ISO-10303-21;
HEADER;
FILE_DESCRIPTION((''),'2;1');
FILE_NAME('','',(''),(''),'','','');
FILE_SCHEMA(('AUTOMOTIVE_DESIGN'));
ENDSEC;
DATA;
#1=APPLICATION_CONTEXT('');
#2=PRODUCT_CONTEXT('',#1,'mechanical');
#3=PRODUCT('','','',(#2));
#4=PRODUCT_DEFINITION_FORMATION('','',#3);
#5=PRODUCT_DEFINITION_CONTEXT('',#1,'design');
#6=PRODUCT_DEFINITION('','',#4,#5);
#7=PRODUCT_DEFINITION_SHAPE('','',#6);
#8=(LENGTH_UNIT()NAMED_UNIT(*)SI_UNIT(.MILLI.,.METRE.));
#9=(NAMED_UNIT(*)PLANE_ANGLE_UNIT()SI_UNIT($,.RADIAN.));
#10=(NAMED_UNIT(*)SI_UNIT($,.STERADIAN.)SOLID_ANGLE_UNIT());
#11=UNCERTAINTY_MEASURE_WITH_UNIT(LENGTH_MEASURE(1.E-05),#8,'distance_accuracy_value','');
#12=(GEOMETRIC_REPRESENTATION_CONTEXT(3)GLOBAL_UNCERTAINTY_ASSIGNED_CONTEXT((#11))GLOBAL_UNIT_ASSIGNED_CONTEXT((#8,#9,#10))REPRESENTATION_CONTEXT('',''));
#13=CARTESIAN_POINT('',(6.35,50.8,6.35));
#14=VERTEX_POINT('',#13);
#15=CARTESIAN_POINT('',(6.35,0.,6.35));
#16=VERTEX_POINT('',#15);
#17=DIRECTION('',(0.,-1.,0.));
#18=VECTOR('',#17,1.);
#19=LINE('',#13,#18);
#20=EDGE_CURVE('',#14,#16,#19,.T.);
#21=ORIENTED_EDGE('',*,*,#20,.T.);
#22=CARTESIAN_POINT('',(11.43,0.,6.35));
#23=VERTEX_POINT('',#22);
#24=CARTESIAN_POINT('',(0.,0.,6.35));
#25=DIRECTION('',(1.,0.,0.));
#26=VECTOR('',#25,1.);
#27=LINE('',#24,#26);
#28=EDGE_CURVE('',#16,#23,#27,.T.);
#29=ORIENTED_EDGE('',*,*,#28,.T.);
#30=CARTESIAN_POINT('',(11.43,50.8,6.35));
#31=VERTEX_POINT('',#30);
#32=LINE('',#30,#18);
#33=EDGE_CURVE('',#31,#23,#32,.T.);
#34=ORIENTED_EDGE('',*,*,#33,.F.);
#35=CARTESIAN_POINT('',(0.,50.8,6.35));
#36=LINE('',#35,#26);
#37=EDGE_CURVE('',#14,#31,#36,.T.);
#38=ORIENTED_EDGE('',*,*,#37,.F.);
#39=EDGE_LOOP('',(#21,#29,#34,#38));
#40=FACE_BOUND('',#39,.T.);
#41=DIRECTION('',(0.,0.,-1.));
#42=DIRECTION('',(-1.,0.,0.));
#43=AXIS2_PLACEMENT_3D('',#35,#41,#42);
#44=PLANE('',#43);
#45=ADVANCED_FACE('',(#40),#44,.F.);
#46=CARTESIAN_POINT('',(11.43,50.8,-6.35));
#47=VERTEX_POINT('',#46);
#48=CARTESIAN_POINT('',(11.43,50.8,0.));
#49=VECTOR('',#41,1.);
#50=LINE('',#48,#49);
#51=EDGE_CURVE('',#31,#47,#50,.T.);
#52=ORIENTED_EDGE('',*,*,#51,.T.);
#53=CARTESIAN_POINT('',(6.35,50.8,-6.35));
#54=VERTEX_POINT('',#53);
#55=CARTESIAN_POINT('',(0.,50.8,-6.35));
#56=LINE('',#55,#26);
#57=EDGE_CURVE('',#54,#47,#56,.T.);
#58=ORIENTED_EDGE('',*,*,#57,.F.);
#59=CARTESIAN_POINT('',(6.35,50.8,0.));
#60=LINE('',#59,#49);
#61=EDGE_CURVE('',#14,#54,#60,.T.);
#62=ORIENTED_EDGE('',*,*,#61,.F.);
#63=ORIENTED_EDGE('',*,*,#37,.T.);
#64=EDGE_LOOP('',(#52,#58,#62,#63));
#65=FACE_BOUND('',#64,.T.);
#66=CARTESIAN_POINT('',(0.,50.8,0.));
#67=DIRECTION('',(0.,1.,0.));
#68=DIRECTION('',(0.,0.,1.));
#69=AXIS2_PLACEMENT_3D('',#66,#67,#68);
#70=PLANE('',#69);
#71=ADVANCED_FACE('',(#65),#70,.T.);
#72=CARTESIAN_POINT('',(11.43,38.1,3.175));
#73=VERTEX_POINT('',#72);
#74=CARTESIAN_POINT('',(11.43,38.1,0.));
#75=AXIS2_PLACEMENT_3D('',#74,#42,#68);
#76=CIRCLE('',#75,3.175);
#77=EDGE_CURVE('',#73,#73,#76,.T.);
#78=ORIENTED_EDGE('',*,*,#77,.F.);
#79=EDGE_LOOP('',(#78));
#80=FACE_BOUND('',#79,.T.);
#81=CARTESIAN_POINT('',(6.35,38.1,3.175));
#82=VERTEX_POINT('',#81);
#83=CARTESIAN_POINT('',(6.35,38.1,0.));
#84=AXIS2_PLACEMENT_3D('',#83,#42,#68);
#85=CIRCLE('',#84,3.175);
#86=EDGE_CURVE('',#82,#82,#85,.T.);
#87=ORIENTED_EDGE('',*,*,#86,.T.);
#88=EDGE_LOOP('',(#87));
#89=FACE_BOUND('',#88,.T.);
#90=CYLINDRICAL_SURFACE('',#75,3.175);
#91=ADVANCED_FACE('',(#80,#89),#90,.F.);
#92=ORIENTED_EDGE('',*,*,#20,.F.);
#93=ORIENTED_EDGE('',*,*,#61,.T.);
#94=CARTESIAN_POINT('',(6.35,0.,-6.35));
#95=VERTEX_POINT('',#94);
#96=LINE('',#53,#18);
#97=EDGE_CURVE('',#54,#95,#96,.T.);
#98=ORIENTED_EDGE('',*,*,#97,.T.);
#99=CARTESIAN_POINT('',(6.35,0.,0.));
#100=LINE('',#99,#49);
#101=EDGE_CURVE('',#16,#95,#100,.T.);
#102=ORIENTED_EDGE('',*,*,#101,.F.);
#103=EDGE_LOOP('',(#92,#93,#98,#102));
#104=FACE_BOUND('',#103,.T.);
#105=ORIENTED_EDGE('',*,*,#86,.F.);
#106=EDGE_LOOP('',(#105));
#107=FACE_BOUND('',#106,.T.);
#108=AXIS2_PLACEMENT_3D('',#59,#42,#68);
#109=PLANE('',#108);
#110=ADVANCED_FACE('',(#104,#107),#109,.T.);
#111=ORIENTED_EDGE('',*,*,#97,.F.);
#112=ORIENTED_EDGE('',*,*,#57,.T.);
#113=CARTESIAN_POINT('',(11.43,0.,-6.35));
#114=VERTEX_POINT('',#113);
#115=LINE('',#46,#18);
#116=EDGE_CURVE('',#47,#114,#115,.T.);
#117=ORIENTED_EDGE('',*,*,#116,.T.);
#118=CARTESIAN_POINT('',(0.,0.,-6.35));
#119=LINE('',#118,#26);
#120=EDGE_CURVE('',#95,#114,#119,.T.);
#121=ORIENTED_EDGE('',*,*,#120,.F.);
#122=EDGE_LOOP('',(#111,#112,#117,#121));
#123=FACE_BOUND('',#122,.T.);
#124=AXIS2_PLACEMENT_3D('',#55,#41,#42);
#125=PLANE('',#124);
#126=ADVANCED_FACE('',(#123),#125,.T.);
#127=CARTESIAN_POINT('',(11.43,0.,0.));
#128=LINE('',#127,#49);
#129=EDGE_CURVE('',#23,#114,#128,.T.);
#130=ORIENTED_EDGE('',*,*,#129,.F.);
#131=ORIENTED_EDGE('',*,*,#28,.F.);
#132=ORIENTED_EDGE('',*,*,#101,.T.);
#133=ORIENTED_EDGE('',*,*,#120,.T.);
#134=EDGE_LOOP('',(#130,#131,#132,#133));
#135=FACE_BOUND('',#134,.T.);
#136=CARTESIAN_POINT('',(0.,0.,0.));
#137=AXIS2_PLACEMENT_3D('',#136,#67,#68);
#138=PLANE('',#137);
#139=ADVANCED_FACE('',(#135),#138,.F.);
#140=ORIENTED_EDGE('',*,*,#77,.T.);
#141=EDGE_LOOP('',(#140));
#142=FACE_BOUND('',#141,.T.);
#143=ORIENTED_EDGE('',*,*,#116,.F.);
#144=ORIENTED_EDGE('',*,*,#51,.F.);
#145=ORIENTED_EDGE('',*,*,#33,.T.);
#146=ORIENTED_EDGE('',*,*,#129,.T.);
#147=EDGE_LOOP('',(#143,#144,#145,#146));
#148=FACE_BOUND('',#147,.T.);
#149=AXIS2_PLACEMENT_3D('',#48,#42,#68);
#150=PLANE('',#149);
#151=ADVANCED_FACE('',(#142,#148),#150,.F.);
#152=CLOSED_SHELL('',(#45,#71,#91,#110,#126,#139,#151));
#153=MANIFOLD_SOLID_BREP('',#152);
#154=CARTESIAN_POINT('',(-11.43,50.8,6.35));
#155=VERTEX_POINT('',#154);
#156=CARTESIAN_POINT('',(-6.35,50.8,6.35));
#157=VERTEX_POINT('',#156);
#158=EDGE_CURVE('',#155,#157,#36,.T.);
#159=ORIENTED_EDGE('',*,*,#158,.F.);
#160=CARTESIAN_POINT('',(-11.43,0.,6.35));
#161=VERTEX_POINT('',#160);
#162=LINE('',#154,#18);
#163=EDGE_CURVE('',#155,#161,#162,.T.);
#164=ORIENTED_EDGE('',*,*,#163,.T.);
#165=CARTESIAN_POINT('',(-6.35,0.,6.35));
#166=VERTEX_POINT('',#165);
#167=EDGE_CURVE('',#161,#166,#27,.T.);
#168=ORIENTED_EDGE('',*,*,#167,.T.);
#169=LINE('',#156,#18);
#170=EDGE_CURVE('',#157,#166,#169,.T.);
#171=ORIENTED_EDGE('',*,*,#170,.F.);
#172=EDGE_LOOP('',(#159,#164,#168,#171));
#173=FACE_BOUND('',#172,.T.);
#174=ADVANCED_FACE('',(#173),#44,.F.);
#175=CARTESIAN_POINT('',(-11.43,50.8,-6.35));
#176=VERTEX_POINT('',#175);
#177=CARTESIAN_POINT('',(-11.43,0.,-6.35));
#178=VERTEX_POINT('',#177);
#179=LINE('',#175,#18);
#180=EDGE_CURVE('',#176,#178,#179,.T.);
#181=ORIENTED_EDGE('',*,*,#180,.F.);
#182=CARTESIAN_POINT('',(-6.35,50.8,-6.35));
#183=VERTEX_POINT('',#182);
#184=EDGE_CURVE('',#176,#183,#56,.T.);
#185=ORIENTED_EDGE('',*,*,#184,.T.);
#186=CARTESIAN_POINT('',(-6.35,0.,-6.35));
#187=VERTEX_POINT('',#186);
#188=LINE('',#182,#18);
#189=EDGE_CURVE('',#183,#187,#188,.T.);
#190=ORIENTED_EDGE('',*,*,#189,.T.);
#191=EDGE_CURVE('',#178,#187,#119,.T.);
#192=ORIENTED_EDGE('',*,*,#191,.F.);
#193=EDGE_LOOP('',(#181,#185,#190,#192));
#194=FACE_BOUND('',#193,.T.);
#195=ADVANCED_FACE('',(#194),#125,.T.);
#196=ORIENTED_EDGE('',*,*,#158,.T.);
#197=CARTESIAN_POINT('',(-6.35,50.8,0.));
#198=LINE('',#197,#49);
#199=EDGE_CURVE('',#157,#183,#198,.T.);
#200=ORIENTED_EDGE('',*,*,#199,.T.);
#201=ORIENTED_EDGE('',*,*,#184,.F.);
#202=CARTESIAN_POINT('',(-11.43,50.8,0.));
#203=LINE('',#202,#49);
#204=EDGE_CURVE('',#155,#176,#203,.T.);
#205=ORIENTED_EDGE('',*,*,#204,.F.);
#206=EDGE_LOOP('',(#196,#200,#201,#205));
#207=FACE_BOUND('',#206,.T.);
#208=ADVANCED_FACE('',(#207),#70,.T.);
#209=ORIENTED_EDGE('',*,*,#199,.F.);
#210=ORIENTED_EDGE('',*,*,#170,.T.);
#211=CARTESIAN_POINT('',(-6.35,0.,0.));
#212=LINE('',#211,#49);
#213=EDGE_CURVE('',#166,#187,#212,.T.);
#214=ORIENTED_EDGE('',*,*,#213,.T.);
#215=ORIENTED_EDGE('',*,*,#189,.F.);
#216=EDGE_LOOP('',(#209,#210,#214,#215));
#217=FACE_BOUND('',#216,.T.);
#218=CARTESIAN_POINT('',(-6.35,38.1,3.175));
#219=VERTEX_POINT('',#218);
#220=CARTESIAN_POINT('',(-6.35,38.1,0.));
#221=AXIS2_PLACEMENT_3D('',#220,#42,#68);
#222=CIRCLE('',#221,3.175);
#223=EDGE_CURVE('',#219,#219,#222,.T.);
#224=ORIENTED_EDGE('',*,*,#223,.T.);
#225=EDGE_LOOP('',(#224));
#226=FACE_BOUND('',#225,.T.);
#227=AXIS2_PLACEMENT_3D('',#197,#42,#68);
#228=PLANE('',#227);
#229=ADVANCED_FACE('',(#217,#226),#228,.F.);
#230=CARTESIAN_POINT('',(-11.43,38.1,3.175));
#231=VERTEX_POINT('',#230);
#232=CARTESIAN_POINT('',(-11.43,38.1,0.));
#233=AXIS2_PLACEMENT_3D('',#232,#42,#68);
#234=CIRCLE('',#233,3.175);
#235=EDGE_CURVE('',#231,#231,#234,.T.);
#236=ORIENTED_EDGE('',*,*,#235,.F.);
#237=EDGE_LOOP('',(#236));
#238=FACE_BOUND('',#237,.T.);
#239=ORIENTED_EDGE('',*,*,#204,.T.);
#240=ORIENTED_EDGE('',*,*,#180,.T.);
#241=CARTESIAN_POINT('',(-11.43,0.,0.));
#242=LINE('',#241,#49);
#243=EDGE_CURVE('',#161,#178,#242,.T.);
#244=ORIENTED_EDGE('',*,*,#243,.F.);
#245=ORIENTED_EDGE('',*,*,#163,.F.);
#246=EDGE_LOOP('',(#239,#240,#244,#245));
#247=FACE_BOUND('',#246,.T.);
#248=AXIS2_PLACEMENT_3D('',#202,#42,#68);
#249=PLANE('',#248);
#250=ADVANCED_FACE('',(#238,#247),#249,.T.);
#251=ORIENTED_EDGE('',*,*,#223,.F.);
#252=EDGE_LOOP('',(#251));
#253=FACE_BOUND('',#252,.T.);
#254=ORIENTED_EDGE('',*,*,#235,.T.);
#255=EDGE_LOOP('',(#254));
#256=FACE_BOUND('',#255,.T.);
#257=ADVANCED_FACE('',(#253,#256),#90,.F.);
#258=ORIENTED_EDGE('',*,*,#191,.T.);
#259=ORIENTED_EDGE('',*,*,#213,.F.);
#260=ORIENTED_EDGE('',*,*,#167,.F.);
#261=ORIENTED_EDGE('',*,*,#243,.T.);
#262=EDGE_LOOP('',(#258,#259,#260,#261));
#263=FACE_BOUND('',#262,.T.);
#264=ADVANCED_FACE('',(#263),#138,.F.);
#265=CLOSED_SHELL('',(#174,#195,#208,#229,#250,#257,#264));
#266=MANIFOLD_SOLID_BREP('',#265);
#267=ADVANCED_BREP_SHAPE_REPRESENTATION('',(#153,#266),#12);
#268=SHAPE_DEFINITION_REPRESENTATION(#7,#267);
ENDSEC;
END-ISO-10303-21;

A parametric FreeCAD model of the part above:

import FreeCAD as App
import Part
import Sketcher

V = App.Vector
Q = App.Units.Quantity


def add_polygon(sketch, points):
    """Adds a closed chain of lines whose ends are joined by coincident constraints."""
    first, n = sketch.GeometryCount, len(points)
    for a, b in zip(points, points[1:] + points[:1]):
        sketch.addGeometry(Part.LineSegment(App.Vector(*a, 0), App.Vector(*b, 0)), False)
    for i in range(n):
        sketch.addConstraint(Sketcher.Constraint("Coincident", first + i, 2, first + (i + 1) % n, 1))

doc = App.newDocument("Part")
body = doc.addObject("PartDesign::Body", "Body")

sketch1 = body.newObject("Sketcher::SketchObject", "Sketch")
sketch1.AttachmentSupport = (doc.getObject("XZ_Plane"), [""])
sketch1.MapMode = "FlatFace"
add_polygon(sketch1, [(-11, -6), (-11, 6), (-6, 6), (-6, -6)])
sketch1.addConstraint(Sketcher.Constraint("Vertical", 0))
sketch1.addConstraint(Sketcher.Constraint("Horizontal", 1))
sketch1.addConstraint(Sketcher.Constraint("Vertical", 2))
sketch1.addConstraint(Sketcher.Constraint("Horizontal", 3))
sketch1.addConstraint(Sketcher.Constraint("DistanceX", 1, 1, 1, 2, Q("0.2 in")))
sketch1.addConstraint(Sketcher.Constraint("DistanceY", 0, 1, 0, 2, Q("0.5 in")))
sketch1.addConstraint(Sketcher.Constraint("DistanceX", 0, 2, -1, 1, Q("0.45 in")))
sketch1.addConstraint(Sketcher.Constraint("DistanceY", -1, 1, 0, 2, Q("0.25 in")))
pad1 = body.newObject("PartDesign::Pad", "Pad")
pad1.Profile = sketch1
pad1.Length = Q("2 in")
pad1.Reversed = True
body2 = doc.addObject("PartDesign::Body", "Body001")

sketch2 = body2.newObject("Sketcher::SketchObject", "Sketch001")
sketch2.AttachmentSupport = (doc.getObject("XZ_Plane001"), [""])
sketch2.MapMode = "FlatFace"
add_polygon(sketch2, [(6, -6), (6, 6), (11, 6), (11, -6)])
sketch2.addConstraint(Sketcher.Constraint("Vertical", 0))
sketch2.addConstraint(Sketcher.Constraint("Horizontal", 1))
sketch2.addConstraint(Sketcher.Constraint("Vertical", 2))
sketch2.addConstraint(Sketcher.Constraint("Horizontal", 3))
sketch2.addConstraint(Sketcher.Constraint("DistanceX", 1, 1, 1, 2, Q("0.2 in")))
sketch2.addConstraint(Sketcher.Constraint("DistanceY", 0, 1, 0, 2, Q("0.5 in")))
sketch2.addConstraint(Sketcher.Constraint("DistanceX", -1, 1, 0, 2, Q("0.25 in")))
sketch2.addConstraint(Sketcher.Constraint("DistanceY", -1, 1, 0, 2, Q("0.25 in")))
pad2 = body2.newObject("PartDesign::Pad", "Pad001")
pad2.Profile = sketch2
pad2.Length = Q("2 in")
pad2.Reversed = True
body3 = doc.addObject("PartDesign::Body", "Body002")

sketch3 = body3.newObject("Sketcher::SketchObject", "Sketch002")
sketch3.AttachmentSupport = (doc.getObject("YZ_Plane002"), [""])
sketch3.MapMode = "FlatFace"
sketch3.AttachmentOffset = App.Placement(V(0, 0, -0.45 * 25.4), App.Rotation())
sketch3.addGeometry(Part.Circle(V(38.1, 0, 0), V(0, 0, 1), 3.2), False)
sketch3.addConstraint(Sketcher.Constraint("PointOnObject", 0, 3, -1))
sketch3.addConstraint(Sketcher.Constraint("Diameter", 0, Q("0.25 in")))
sketch3.addConstraint(Sketcher.Constraint("DistanceX", -1, 1, 0, 3, Q("1.5 in")))
pad3 = body3.newObject("PartDesign::Pad", "Pad002")
pad3.Profile = sketch3
pad3.Length = 23.86
doc.recompute()

body4 = doc.addObject("PartDesign::Body", "Body003")
body4.BaseFeature = body3
boolean = body.newObject("PartDesign::Boolean", "Boolean")
boolean.Type = "Cut"
boolean.addObjects([body4])
doc.recompute()

boolean2 = body2.newObject("PartDesign::Boolean", "Boolean001")
boolean2.Type = "Cut"
boolean2.addObjects([body3])

doc.recompute()
